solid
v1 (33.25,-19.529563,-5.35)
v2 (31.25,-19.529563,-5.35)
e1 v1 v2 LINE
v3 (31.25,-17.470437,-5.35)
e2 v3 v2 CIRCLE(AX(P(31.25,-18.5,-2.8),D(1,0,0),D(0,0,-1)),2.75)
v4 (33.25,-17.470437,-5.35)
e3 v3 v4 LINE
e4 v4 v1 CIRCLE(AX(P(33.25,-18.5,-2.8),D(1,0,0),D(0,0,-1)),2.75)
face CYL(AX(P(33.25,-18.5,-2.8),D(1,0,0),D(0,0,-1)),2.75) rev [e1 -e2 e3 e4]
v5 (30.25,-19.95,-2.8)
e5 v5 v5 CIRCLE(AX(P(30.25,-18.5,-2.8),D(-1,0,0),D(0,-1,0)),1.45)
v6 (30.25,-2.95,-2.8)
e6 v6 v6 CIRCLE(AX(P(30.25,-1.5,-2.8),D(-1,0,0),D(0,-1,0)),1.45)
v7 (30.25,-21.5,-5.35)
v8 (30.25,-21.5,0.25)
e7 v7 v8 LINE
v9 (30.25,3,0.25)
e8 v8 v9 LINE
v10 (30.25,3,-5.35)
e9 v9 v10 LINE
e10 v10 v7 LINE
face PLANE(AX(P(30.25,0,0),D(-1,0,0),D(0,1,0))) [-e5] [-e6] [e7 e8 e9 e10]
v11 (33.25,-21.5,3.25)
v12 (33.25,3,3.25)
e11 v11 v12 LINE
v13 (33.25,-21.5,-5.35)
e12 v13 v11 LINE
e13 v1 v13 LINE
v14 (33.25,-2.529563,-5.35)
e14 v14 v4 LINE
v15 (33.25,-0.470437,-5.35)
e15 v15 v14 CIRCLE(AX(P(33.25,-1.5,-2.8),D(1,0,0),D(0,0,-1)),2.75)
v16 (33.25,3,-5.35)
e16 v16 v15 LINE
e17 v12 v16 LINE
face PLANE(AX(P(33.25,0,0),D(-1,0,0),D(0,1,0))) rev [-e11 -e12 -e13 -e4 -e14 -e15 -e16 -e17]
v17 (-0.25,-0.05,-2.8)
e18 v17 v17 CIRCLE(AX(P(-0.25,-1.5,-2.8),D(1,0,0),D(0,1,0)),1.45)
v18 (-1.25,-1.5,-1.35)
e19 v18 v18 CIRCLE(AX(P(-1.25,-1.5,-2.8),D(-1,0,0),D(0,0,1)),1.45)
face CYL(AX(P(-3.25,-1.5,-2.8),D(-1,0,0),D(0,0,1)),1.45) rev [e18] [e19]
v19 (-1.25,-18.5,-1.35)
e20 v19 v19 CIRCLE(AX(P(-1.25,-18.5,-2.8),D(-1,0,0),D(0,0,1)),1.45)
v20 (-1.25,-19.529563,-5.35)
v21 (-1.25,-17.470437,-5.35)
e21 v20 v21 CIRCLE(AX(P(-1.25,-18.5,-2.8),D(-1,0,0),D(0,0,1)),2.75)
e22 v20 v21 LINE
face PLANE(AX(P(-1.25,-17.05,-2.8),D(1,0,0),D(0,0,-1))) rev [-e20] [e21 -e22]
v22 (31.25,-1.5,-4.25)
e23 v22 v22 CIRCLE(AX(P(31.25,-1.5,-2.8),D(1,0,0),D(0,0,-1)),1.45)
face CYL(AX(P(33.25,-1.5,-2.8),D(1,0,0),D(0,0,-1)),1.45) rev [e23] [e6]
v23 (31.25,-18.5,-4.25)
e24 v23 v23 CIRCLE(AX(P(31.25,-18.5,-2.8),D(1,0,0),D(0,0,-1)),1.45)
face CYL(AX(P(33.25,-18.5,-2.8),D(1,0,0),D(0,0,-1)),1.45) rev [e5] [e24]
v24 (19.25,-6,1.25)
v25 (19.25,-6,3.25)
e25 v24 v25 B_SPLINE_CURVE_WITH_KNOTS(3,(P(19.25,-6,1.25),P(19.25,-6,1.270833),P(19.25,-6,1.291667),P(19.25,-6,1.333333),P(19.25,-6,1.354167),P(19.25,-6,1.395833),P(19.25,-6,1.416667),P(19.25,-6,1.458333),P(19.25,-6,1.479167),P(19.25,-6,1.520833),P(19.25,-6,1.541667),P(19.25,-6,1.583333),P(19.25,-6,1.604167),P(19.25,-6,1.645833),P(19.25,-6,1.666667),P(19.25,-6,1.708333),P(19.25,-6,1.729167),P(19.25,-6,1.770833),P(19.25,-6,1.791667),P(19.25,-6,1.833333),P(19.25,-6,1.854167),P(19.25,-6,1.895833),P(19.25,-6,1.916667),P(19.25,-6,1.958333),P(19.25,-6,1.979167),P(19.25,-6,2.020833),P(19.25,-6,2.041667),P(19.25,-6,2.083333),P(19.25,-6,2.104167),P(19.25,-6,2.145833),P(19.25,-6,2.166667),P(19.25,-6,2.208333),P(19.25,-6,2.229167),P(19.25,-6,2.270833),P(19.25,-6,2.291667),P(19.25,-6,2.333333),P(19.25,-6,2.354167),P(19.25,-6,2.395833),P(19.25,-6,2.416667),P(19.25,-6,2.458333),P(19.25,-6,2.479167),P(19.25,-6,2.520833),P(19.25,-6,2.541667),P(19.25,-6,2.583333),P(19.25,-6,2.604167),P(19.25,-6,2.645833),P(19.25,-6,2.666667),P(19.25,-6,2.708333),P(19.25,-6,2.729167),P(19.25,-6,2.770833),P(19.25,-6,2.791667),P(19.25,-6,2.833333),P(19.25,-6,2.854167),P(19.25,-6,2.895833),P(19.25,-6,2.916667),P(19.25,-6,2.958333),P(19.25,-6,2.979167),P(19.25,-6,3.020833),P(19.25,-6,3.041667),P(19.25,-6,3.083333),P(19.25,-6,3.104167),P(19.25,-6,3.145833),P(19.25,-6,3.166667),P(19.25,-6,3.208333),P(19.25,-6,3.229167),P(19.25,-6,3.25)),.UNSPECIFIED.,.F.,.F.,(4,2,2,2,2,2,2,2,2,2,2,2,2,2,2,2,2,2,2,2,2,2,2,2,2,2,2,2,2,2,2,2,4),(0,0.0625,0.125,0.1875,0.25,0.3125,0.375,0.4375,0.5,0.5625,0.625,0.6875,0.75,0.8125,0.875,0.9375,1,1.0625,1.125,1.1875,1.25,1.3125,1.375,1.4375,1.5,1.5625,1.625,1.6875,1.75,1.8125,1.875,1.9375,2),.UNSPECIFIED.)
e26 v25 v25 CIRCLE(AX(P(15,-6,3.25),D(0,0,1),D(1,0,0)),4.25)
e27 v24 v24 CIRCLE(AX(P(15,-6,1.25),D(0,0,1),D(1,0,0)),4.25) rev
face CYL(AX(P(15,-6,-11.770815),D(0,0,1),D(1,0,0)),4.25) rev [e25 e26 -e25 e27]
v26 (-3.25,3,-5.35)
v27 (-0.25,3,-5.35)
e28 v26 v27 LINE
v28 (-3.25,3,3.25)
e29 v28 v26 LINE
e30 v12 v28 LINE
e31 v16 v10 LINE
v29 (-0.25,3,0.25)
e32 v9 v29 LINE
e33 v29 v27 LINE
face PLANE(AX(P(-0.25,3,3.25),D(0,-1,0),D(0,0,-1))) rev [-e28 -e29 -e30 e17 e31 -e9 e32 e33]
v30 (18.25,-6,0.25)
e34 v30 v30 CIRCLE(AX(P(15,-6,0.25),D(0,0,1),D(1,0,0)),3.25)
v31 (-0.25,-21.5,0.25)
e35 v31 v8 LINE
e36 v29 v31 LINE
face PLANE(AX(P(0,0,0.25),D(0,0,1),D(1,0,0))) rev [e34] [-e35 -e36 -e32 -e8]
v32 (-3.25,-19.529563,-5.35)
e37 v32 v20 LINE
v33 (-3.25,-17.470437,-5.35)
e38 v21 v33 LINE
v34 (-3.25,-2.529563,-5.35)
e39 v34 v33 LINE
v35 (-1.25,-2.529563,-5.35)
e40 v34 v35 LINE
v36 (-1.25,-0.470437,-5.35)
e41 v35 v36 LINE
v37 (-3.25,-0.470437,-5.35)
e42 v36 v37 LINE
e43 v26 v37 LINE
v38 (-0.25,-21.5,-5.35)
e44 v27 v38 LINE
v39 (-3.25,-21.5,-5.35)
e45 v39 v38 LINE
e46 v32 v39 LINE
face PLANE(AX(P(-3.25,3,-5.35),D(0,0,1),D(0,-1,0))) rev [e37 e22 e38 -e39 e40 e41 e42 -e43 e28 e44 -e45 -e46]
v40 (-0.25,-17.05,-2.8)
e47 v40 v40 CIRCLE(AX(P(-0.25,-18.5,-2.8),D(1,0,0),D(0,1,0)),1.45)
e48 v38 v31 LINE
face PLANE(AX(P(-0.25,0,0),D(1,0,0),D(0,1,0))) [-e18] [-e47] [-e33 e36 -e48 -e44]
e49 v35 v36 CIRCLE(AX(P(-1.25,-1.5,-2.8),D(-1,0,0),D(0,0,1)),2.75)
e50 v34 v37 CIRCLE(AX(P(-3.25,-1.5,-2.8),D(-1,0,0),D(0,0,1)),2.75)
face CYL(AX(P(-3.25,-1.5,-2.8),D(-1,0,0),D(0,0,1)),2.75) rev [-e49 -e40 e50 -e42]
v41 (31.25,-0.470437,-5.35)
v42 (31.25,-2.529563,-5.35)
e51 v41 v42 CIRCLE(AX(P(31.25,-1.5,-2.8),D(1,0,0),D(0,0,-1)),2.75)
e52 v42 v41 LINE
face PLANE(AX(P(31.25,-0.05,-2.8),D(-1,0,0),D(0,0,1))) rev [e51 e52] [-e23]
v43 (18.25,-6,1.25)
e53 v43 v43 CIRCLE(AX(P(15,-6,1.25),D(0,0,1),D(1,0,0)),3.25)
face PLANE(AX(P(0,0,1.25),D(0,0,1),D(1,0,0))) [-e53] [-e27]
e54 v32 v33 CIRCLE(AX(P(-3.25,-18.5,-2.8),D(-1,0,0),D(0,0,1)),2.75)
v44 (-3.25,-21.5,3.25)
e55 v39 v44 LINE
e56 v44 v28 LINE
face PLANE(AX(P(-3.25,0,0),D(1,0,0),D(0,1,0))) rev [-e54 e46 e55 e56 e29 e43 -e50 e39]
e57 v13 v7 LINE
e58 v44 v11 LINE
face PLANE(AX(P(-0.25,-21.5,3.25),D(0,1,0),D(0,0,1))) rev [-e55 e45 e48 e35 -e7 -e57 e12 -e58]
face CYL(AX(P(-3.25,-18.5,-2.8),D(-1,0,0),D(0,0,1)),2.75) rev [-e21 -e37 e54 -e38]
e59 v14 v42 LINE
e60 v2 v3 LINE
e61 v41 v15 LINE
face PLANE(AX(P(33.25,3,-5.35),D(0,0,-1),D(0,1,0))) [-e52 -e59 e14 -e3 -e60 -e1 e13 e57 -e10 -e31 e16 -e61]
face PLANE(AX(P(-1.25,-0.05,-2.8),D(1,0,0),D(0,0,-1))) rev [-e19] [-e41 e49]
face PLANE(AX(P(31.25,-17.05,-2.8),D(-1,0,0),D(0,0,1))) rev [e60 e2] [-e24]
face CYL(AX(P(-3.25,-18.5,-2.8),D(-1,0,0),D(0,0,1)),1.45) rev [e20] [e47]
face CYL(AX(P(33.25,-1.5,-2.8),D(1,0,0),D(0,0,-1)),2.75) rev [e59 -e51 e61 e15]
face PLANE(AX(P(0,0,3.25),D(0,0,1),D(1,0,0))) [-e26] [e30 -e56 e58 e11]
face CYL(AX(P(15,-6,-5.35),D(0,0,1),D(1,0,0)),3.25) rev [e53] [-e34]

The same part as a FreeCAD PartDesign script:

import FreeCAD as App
import Part
import Sketcher
from FreeCAD import Vector


def add_polygon(sketch, points):
    """Adds a closed chain of lines whose ends are joined by coincident constraints."""
    first, n = sketch.GeometryCount, len(points)
    for a, b in zip(points, points[1:] + points[:1]):
        sketch.addGeometry(Part.LineSegment(App.Vector(*a, 0), App.Vector(*b, 0)), False)
    for i in range(n):
        sketch.addConstraint(Sketcher.Constraint("Coincident", first + i, 2, first + (i + 1) % n, 1))

doc = App.newDocument("Part")
body = doc.addObject("PartDesign::Body", "Body")

# Sketch on XY plane
sketch1 = body.newObject("Sketcher::SketchObject", "Sketch")
sketch1.AttachmentSupport = (doc.getObject("XY_Plane"), [""])
sketch1.MapMode = "FlatFace"
sketch1.AttachmentOffset = App.Placement(Vector(0, 0, 0.25), App.Rotation())
add_polygon(sketch1, [(-0.25, 3), (-0.25, -21.5), (30.25, -21.5), (30.25, 3)])  # lines 0-3
sketch1.addConstraint([
    Sketcher.Constraint("Vertical", 0),
    Sketcher.Constraint("Horizontal", 1),
    Sketcher.Constraint("Vertical", 2),
    Sketcher.Constraint("Horizontal", 3),
    Sketcher.Constraint("DistanceX", 1, 1, 1, 2, 30.5),
    Sketcher.Constraint("DistanceY", 0, 2, 0, 1, 24.5),
    Sketcher.Constraint("DistanceY", -1, 1, 2, 2, 3.0),
    Sketcher.Constraint("DistanceX", 0, 2, -1, 1, 0.25),
])
pad1 = body.newObject("PartDesign::Pad", "Pad")
pad1.Profile = sketch1
pad1.Length = 3

# Sketch on YZ plane
sketch2 = body.newObject("Sketcher::SketchObject", "Sketch001")
sketch2.AttachmentSupport = (doc.getObject("YZ_Plane"), [""])
sketch2.MapMode = "FlatFace"
sketch2.AttachmentOffset = App.Placement(Vector(0, 0, -0.25), App.Rotation())
add_polygon(sketch2, [(3, -5.35), (-21.5, -5.35), (-21.5, 3.25), (3, 3.25)])  # lines 0-3
sketch2.addConstraint([
    Sketcher.Constraint("Horizontal", 0),
    Sketcher.Constraint("Vertical", 1),
    Sketcher.Constraint("Horizontal", 2),
    Sketcher.Constraint("Vertical", 3),
    Sketcher.Constraint("DistanceX", 0, 2, 0, 1, 24.5),
    Sketcher.Constraint("DistanceY", 1, 1, 1, 2, 8.6),
    Sketcher.Constraint("DistanceX", -1, 1, 2, 2, 3.0),
    Sketcher.Constraint("DistanceY", 0, 2, -1, 1, 5.35),
])
pad2 = body.newObject("PartDesign::Pad", "Pad001")
pad2.Profile = sketch2
pad2.Length = 3
pad2.Reversed = True
doc.recompute()

datumplane = body.newObject("PartDesign::Plane", "DatumPlane")
datumplane.AttachmentSupport = (doc.getObject("YZ_Plane"), [""])
datumplane.MapMode = "FlatFace"
datumplane.AttachmentOffset = App.Placement(Vector(0, 0, 15), App.Rotation())
mirrored = body.newObject("PartDesign::Mirrored", "Mirrored")
mirrored.Originals = [pad2]
mirrored.MirrorPlane = (datumplane, [""])
body.Tip = mirrored

# Sketch on XY plane
sketch3 = body.newObject("Sketcher::SketchObject", "Sketch002")
sketch3.AttachmentSupport = (doc.getObject("XY_Plane"), [""])
sketch3.MapMode = "FlatFace"
sketch3.AttachmentOffset = App.Placement(Vector(0, 0, 3.25), App.Rotation())
sketch3.addGeometry(Part.Circle(Vector(15, -6, 0), Vector(0, 0, 1), 4.25), False)
sketch3.addConstraint([
    Sketcher.Constraint("Diameter", 0, 8.5),
    Sketcher.Constraint("DistanceX", -1, 1, 0, 3, 15.0),
    Sketcher.Constraint("DistanceY", 0, 3, -1, 1, 6.0),
])
pocket1 = body.newObject("PartDesign::Pocket", "Pocket")
pocket1.Profile = sketch3
pocket1.Length = 2

# Sketch on XY plane
sketch4 = body.newObject("Sketcher::SketchObject", "Sketch003")
sketch4.AttachmentSupport = (doc.getObject("XY_Plane"), [""])
sketch4.MapMode = "FlatFace"
sketch4.AttachmentOffset = App.Placement(Vector(0, 0, 1.25), App.Rotation())
sketch4.addGeometry(Part.Circle(Vector(15, -6, 0), Vector(0, 0, 1), 3.25), False)
sketch4.addConstraint([
    Sketcher.Constraint("Diameter", 0, 6.5),
    Sketcher.Constraint("DistanceX", -1, 1, 0, 3, 15.0),
    Sketcher.Constraint("DistanceY", 0, 3, -1, 1, 6.0),
])
pocket2 = body.newObject("PartDesign::Pocket", "Pocket001")
pocket2.Profile = sketch4
pocket2.Type = "ThroughAll"

# Sketch on YZ plane
sketch5 = body.newObject("Sketcher::SketchObject", "Sketch004")
sketch5.AttachmentSupport = (doc.getObject("YZ_Plane"), [""])
sketch5.MapMode = "FlatFace"
sketch5.AttachmentOffset = App.Placement(Vector(0, 0, -3.25), App.Rotation())
sketch5.addGeometry([
    Part.Circle(Vector(-1.5, -2.8, 0), Vector(0, 0, 1), 1.45),
    Part.Circle(Vector(-18.5, -2.8, 0), Vector(0, 0, 1), 1.45),
], False)
sketch5.addConstraint([
    Sketcher.Constraint("Equal", 0, 1),
    Sketcher.Constraint("Horizontal", 0, 3, 1, 3),
    Sketcher.Constraint("Diameter", 0, 2.9),
    Sketcher.Constraint("DistanceX", 1, 3, 0, 3, 17.0),
    Sketcher.Constraint("DistanceX", 0, 3, -1, 1, 1.5),
    Sketcher.Constraint("DistanceY", 0, 3, -1, 1, 2.8),
])
doc.recompute()
hole = body.newObject("PartDesign::Hole", "Hole")
hole.Profile = sketch5
hole.ThreadType = "None"
hole.Diameter = 2.9
hole.DepthType = "Dimension"
hole.Depth = 3
hole.DrillPoint = "Flat"
hole.HoleCutType = "Counterbore"
hole.HoleCutDiameter = 5.5
hole.HoleCutDepth = 2
hole.Reversed = True
doc.recompute()

datumplane2 = body.newObject("PartDesign::Plane", "DatumPlane001")
datumplane2.AttachmentSupport = (doc.getObject("YZ_Plane"), [""])
datumplane2.MapMode = "FlatFace"
datumplane2.AttachmentOffset = App.Placement(Vector(0, 0, 15), App.Rotation())
mirrored2 = body.newObject("PartDesign::Mirrored", "Mirrored001")
mirrored2.Originals = [hole]
mirrored2.MirrorPlane = (datumplane2, [""])
body.Tip = mirrored2

doc.recompute()
